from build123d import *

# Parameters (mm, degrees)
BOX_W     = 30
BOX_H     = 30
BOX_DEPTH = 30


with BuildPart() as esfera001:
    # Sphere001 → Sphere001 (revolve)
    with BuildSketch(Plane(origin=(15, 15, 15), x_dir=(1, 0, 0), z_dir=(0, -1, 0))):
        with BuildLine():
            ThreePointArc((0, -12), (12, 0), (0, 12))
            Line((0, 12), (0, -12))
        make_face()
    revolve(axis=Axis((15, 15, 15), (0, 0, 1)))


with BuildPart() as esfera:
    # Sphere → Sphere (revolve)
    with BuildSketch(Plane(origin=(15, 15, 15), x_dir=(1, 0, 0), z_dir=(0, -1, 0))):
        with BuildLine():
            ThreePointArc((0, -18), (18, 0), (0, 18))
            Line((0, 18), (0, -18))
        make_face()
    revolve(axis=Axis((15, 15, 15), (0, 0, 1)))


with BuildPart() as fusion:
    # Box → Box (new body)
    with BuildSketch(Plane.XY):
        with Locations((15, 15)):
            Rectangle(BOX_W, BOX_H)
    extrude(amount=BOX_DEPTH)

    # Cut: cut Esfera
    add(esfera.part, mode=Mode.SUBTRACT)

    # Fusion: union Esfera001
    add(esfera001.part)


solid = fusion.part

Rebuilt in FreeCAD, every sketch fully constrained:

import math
import FreeCAD as App
import Part
import Sketcher
from FreeCAD import Vector
Q = App.Units.Quantity

doc = App.newDocument("Part")
params = doc.addObject("Spreadsheet::Sheet", "Params")
for row, (alias, value) in enumerate([
    ("sketch1_radius", "12 mm"),
    ("revolution_angle", "360 deg"),
    ("sketch2_radius", "18 mm"),
    ("revolution2_angle", "360 deg"),
    ("sketch3_width", "30 mm"),
    ("pad1_length", "30 mm"),
], start=1):
    params.set(f"A{row}", alias)
    params.set(f"B{row}", "=" + value)
    params.setAlias(f"B{row}", alias)

body = doc.addObject("PartDesign::Body", "Body")

# Sketch on XZ plane
sketch1 = doc.addObject("Sketcher::SketchObject", "Sketch")
body.addObject(sketch1)
sketch1.AttachmentSupport = (doc.XZ_Plane, [""])
sketch1.MapMode = "FlatFace"
sketch1.AttachmentOffset = App.Placement(Vector(0, 0, -15), App.Rotation())
sketch1.addGeometry([
    Part.ArcOfCircle(Part.Circle(Vector(15, 15, 0), Vector(0, 0, 1), 12), math.radians(-90), math.radians(90)),
    Part.LineSegment(Vector(15, 27, 0), Vector(15, 3, 0)),
], False)
sketch1.addGeometry(Part.LineSegment(Vector(15, 3, 0), Vector(15, 27, 0)), True)  # axis
sketch1.addConstraint([
    Sketcher.Constraint("Coincident", 0, 1, 1, 2),
    Sketcher.Constraint("Coincident", 1, 1, 0, 2),
    Sketcher.Constraint("Vertical", 1),
    Sketcher.Constraint("Vertical", 2),
    Sketcher.Constraint("Coincident", 2, 1, 0, 1),
    Sketcher.Constraint("Equal", 1, 2),
    Sketcher.Constraint("Radius", 0, Q("12 mm")),
    Sketcher.Constraint("DistanceX", -1, 1, 0, 3, Q("15 mm")),
    Sketcher.Constraint("DistanceY", -1, 1, 0, 3, Q("15 mm")),
    Sketcher.Constraint("DistanceX", -1, 1, 0, 1, Q("15 mm")),
])
sketch1.setExpression("Constraints[6]", "Params.sketch1_radius")
revolution = doc.addObject("PartDesign::Revolution", "Revolution")
body.addObject(revolution)
revolution.Profile = sketch1
revolution.ReferenceAxis = (sketch1, ["Axis0"])
revolution.setExpression("Angle", "Params.revolution_angle")
body2 = doc.addObject("PartDesign::Body", "Body001")

# Sketch on XZ plane
sketch2 = doc.addObject("Sketcher::SketchObject", "Sketch001")
body2.addObject(sketch2)
sketch2.AttachmentSupport = (doc.getObject("XZ_Plane001"), [""])
sketch2.MapMode = "FlatFace"
sketch2.AttachmentOffset = App.Placement(Vector(0, 0, -15), App.Rotation())
sketch2.addGeometry([
    Part.ArcOfCircle(Part.Circle(Vector(15, 15, 0), Vector(0, 0, 1), 18), math.radians(-90), math.radians(90)),
    Part.LineSegment(Vector(15, 33, 0), Vector(15, -3, 0)),
], False)
sketch2.addGeometry(Part.LineSegment(Vector(15, -3, 0), Vector(15, 33, 0)), True)  # axis
sketch2.addConstraint([
    Sketcher.Constraint("Coincident", 0, 1, 1, 2),
    Sketcher.Constraint("Coincident", 1, 1, 0, 2),
    Sketcher.Constraint("Vertical", 1),
    Sketcher.Constraint("Vertical", 2),
    Sketcher.Constraint("Coincident", 2, 1, 0, 1),
    Sketcher.Constraint("Equal", 1, 2),
    Sketcher.Constraint("Radius", 0, Q("18 mm")),
    Sketcher.Constraint("DistanceX", -1, 1, 0, 3, Q("15 mm")),
    Sketcher.Constraint("DistanceY", -1, 1, 0, 3, Q("15 mm")),
    Sketcher.Constraint("DistanceX", -1, 1, 0, 1, Q("15 mm")),
])
sketch2.setExpression("Constraints[6]", "Params.sketch2_radius")
revolution2 = doc.addObject("PartDesign::Revolution", "Revolution001")
body2.addObject(revolution2)
revolution2.Profile = sketch2
revolution2.ReferenceAxis = (sketch2, ["Axis0"])
revolution2.setExpression("Angle", "Params.revolution2_angle")
body3 = doc.addObject("PartDesign::Body", "Body002")
body3.AllowCompound = True

# Sketch on XY plane
sketch3 = doc.addObject("Sketcher::SketchObject", "Sketch002")
body3.addObject(sketch3)
sketch3.AttachmentSupport = (doc.getObject("XY_Plane002"), [""])
sketch3.MapMode = "FlatFace"
sketch3.addGeometry([
    Part.LineSegment(Vector(0, 30, 0), Vector(0, 0, 0)),
    Part.LineSegment(Vector(0, 0, 0), Vector(30, 0, 0)),
    Part.LineSegment(Vector(30, 0, 0), Vector(30, 30, 0)),
    Part.LineSegment(Vector(30, 30, 0), Vector(0, 30, 0)),
], False)
sketch3.addConstraint([
    Sketcher.Constraint("Coincident", 0, 2, 1, 1),
    Sketcher.Constraint("Coincident", 1, 2, 2, 1),
    Sketcher.Constraint("Coincident", 2, 2, 3, 1),
    Sketcher.Constraint("Coincident", 3, 2, 0, 1),
    Sketcher.Constraint("Vertical", 0),
    Sketcher.Constraint("Horizontal", 1),
    Sketcher.Constraint("Vertical", 2),
    Sketcher.Constraint("Horizontal", 3),
    Sketcher.Constraint("Coincident", 0, 2, -1, 1),
    Sketcher.Constraint("Equal", 3, 0),
    Sketcher.Constraint("DistanceX", 1, 1, 1, 2, Q("30 mm")),
])
sketch3.setExpression("Constraints[10]", "Params.sketch3_width")
pad1 = doc.addObject("PartDesign::Pad", "Pad")
body3.addObject(pad1)
pad1.Profile = sketch3
pad1.setExpression("Length", "Params.pad1_length")
doc.recompute()

boolean = doc.addObject("PartDesign::Boolean", "Boolean")
body3.addObject(boolean)
boolean.Type = "Cut"
boolean.addObjects([body2])
doc.recompute()

boolean2 = doc.addObject("PartDesign::Boolean", "Boolean001")
body3.addObject(boolean2)
boolean2.Type = "Fuse"
boolean2.addObjects([body])

doc.recompute()
